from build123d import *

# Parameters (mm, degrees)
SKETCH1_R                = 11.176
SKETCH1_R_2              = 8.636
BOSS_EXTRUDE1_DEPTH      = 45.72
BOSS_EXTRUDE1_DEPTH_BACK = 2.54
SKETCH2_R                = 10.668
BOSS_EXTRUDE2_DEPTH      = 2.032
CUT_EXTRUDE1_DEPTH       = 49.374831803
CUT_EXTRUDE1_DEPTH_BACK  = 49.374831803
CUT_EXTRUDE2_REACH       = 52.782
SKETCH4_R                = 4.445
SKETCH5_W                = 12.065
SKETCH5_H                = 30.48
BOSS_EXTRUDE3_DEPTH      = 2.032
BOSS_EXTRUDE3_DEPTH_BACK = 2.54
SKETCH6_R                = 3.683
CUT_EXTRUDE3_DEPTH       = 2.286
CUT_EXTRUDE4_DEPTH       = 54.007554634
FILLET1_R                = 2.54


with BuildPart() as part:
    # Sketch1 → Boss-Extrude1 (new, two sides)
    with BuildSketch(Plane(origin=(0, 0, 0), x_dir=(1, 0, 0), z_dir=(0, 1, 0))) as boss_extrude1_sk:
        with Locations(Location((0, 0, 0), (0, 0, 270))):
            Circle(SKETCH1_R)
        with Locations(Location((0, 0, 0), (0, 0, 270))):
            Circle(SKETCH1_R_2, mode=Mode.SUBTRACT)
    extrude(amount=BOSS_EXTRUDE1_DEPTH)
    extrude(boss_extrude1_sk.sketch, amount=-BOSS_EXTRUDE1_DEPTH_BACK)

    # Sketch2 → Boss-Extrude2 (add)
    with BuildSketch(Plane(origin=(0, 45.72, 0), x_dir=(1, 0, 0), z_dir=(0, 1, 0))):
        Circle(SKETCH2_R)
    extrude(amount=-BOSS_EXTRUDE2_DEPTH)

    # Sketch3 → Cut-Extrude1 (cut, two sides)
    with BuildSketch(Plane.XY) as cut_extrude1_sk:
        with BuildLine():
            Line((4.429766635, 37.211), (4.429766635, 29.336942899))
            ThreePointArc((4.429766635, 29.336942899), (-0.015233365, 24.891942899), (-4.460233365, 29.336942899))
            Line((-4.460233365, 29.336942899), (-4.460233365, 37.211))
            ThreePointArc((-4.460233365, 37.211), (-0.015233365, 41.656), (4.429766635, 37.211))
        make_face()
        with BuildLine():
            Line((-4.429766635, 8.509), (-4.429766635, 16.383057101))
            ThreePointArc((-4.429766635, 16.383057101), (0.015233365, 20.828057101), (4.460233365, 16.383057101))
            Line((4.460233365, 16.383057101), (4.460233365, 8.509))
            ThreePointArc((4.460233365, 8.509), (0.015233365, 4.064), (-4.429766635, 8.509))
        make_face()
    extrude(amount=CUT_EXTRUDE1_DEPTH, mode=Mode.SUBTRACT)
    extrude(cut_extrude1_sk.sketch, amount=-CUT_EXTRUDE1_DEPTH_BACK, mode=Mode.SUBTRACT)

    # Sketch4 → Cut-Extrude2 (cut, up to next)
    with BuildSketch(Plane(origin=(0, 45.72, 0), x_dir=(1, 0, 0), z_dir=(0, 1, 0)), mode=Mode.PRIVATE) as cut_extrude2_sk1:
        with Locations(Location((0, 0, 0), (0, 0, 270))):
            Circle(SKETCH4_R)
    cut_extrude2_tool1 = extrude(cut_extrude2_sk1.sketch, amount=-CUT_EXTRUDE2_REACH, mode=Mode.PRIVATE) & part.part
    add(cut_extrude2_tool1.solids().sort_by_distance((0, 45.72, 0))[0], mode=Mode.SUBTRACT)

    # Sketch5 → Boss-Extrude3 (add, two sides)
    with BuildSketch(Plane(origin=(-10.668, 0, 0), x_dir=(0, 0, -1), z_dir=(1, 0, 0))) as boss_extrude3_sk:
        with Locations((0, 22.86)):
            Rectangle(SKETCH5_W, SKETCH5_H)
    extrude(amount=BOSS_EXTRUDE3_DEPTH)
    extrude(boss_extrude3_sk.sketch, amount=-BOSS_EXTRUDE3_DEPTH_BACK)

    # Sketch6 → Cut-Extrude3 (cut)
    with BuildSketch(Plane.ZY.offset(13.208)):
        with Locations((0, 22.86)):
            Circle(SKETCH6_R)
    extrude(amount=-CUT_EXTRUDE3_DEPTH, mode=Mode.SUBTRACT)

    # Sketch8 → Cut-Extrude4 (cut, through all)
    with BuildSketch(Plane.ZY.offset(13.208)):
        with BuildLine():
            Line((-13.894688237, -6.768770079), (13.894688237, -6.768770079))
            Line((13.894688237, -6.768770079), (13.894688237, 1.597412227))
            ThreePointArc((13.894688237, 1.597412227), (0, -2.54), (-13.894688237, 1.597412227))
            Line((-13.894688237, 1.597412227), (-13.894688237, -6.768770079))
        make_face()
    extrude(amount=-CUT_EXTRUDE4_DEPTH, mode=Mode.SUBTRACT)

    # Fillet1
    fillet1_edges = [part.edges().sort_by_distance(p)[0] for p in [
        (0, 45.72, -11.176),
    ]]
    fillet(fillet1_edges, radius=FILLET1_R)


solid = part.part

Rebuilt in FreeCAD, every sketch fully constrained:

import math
import FreeCAD as App
import Part
import Sketcher
Q = App.Units.Quantity


def edges_at(feature, points):
    """Names of the edges that pass closest to the given points."""
    edges = feature.Shape.Edges
    near = lambda p: min(range(len(edges)), key=lambda i: edges[i].distToShape(Part.Vertex(*p))[0])
    return sorted({f"Edge{near(p) + 1}" for p in points})


def add_polygon(sketch, points):
    """Adds a closed chain of lines whose ends are joined by coincident constraints."""
    first, n = sketch.GeometryCount, len(points)
    for a, b in zip(points, points[1:] + points[:1]):
        sketch.addGeometry(Part.LineSegment(App.Vector(*a, 0), App.Vector(*b, 0)), False)
    for i in range(n):
        sketch.addConstraint(Sketcher.Constraint("Coincident", first + i, 2, first + (i + 1) % n, 1))

doc = App.newDocument("Part")
body = doc.addObject("PartDesign::Body", "Body")

sketch1 = body.newObject("Sketcher::SketchObject", "Sketch")
sketch1.AttachmentSupport = (doc.getObject("XZ_Plane"), [""])
sketch1.MapMode = "FlatFace"
sketch1.addGeometry([
    Part.Circle(App.Vector(0, 0, 0), App.Vector(0, 0, 1), 11),
    Part.Circle(App.Vector(0, 0, 0), App.Vector(0, 0, 1), 9),
], False)
sketch1.addConstraint([
    Sketcher.Constraint("Coincident", 0, 3, -1, 1),
    Sketcher.Constraint("Coincident", 1, 3, -1, 1),
    Sketcher.Constraint("Diameter", 0, Q("0.88 in")),
    Sketcher.Constraint("Diameter", 1, Q("0.68 in")),
])
pad1 = body.newObject("PartDesign::Pad", "Pad")
pad1.Profile = sketch1
pad1.Type = "TwoLengths"
pad1.Length = Q("1.8 in")
pad1.Length2 = Q("0.1 in")
pad1.Reversed = True

sketch2 = body.newObject("Sketcher::SketchObject", "Sketch001")
sketch2.AttachmentSupport = (doc.getObject("XZ_Plane"), [""])
sketch2.MapMode = "FlatFace"
sketch2.AttachmentOffset = App.Placement(App.Vector(0, 0, -1.8 * 25.4), App.Rotation())
sketch2.addGeometry(Part.Circle(App.Vector(0, 0, 0), App.Vector(0, 0, 1), 11), False)
sketch2.addConstraint([
    Sketcher.Constraint("Coincident", 0, 3, -1, 1),
    Sketcher.Constraint("Diameter", 0, Q("0.84 in")),
])
pad2 = body.newObject("PartDesign::Pad", "Pad001")
pad2.Profile = sketch2
pad2.Length = Q("0.08 in")

sketch3 = body.newObject("Sketcher::SketchObject", "Sketch002")
sketch3.AttachmentSupport = (doc.getObject("XY_Plane"), [""])
sketch3.MapMode = "FlatFace"
sketch3.addGeometry([
    Part.LineSegment(App.Vector(4.4, 29.3, 0), App.Vector(4.4, 37.2, 0)),
    Part.ArcOfCircle(Part.Circle(App.Vector(0, 37.2, 0), App.Vector(0, 0, 1), 4.4), math.radians(0), math.radians(180)),
    Part.LineSegment(App.Vector(-4.5, 37.2, 0), App.Vector(-4.5, 29.3, 0)),
    Part.ArcOfCircle(Part.Circle(App.Vector(0, 29.3, 0), App.Vector(0, 0, 1), 4.4), math.radians(180), math.radians(360)),
    Part.LineSegment(App.Vector(-4.4, 16.4, 0), App.Vector(-4.4, 8.5, 0)),
    Part.ArcOfCircle(Part.Circle(App.Vector(0, 8.5, 0), App.Vector(0, 0, 1), 4.4), math.radians(180), math.radians(360)),
    Part.LineSegment(App.Vector(4.5, 8.5, 0), App.Vector(4.5, 16.4, 0)),
    Part.ArcOfCircle(Part.Circle(App.Vector(0, 16.4, 0), App.Vector(0, 0, 1), 4.4), math.radians(0), math.radians(180)),
], False)
sketch3.addConstraint([
    Sketcher.Constraint("Tangent", 0, 2, 1, 1),
    Sketcher.Constraint("Tangent", 1, 2, 2, 1),
    Sketcher.Constraint("Tangent", 2, 2, 3, 1),
    Sketcher.Constraint("Tangent", 3, 2, 0, 1),
    Sketcher.Constraint("Tangent", 4, 2, 5, 1),
    Sketcher.Constraint("Tangent", 5, 2, 6, 1),
    Sketcher.Constraint("Tangent", 6, 2, 7, 1),
    Sketcher.Constraint("Tangent", 7, 2, 4, 1),
    Sketcher.Constraint("Vertical", 0),
    Sketcher.Constraint("Vertical", 2),
    Sketcher.Constraint("Vertical", 4),
    Sketcher.Constraint("Vertical", 6),
    Sketcher.Constraint("Equal", 3, 5),
    Sketcher.Constraint("Equal", 2, 4),
    Sketcher.Constraint("Radius", 1, Q("0.175 in")),
    Sketcher.Constraint("DistanceY", 5, 3, 1, 3, Q("1.13 in")),
    Sketcher.Constraint("DistanceY", -1, 1, 1, 3, Q("1.465 in")),
    Sketcher.Constraint("DistanceY", 0, 1, 0, 2, Q("7.874057 mm")),
    Sketcher.Constraint("DistanceX", 1, 3, -1, 1, Q("0.015233 mm")),
    Sketcher.Constraint("DistanceX", -1, 1, 5, 3, Q("0.015233 mm")),
])
pocket1 = body.newObject("PartDesign::Pocket", "Pocket")
pocket1.Profile = sketch3
pocket1.Type = "ThroughAll"
pocket1.Midplane = True

sketch4 = body.newObject("Sketcher::SketchObject", "Sketch003")
sketch4.AttachmentSupport = (doc.getObject("XZ_Plane"), [""])
sketch4.MapMode = "FlatFace"
sketch4.AttachmentOffset = App.Placement(App.Vector(0, 0, -1.8 * 25.4), App.Rotation())
sketch4.addGeometry(Part.Circle(App.Vector(0, 0, 0), App.Vector(0, 0, 1), 4.4), False)
sketch4.addConstraint([
    Sketcher.Constraint("Coincident", 0, 3, -1, 1),
    Sketcher.Constraint("Diameter", 0, Q("0.35 in")),
])
pocket2 = body.newObject("PartDesign::Pocket", "Pocket001")
pocket2.Profile = sketch4
pocket2.Type = "UpToFirst"
pocket2.Reversed = True

sketch5 = body.newObject("Sketcher::SketchObject", "Sketch004")
sketch5.AttachmentSupport = (doc.getObject("YZ_Plane"), [""])
sketch5.MapMode = "FlatFace"
sketch5.AttachmentOffset = App.Placement(App.Vector(0, 0, -0.42 * 25.4), App.Rotation())
add_polygon(sketch5, [(38, 6), (8, 6), (8, -6), (38, -6)])
sketch5.addConstraint([
    Sketcher.Constraint("Horizontal", 0),
    Sketcher.Constraint("Vertical", 1),
    Sketcher.Constraint("Horizontal", 2),
    Sketcher.Constraint("Vertical", 3),
    Sketcher.Constraint("DistanceX", 0, 2, 0, 1, Q("1.2 in")),
    Sketcher.Constraint("DistanceX", -1, 1, 0, 2, Q("0.3 in")),
    Sketcher.Constraint("DistanceY", 1, 2, 1, 1, Q("0.475 in")),
    Sketcher.Constraint("DistanceY", -1, 1, 0, 2, Q("0.2375 in")),
])
pad3 = body.newObject("PartDesign::Pad", "Pad002")
pad3.Profile = sketch5
pad3.Type = "TwoLengths"
pad3.Length = Q("0.08 in")
pad3.Length2 = Q("0.1 in")

sketch6 = body.newObject("Sketcher::SketchObject", "Sketch005")
sketch6.AttachmentSupport = (doc.getObject("YZ_Plane"), [""])
sketch6.MapMode = "FlatFace"
sketch6.AttachmentOffset = App.Placement(App.Vector(0, 0, -0.52 * 25.4), App.Rotation())
sketch6.addGeometry(Part.Circle(App.Vector(22.9, 0, 0), App.Vector(0, 0, 1), 3.7), False)
sketch6.addConstraint([
    Sketcher.Constraint("PointOnObject", 0, 3, -1),
    Sketcher.Constraint("Diameter", 0, Q("0.29 in")),
    Sketcher.Constraint("DistanceX", -1, 1, 0, 3, Q("0.9 in")),
])
pocket3 = body.newObject("PartDesign::Pocket", "Pocket002")
pocket3.Profile = sketch6
pocket3.Length = Q("0.09 in")
pocket3.Reversed = True

sketch7 = body.newObject("Sketcher::SketchObject", "Sketch006")
sketch7.AttachmentSupport = (doc.getObject("YZ_Plane"), [""])
sketch7.MapMode = "FlatFace"
sketch7.AttachmentOffset = App.Placement(App.Vector(0, 0, -0.52 * 25.4), App.Rotation())
sketch7.addGeometry([
    Part.LineSegment(App.Vector(-7, -14, 0), App.Vector(-7, 14, 0)),
    Part.LineSegment(App.Vector(-7, 14, 0), App.Vector(2, 14, 0)),
    Part.ArcOfCircle(Part.Circle(App.Vector(23, 0, 0), App.Vector(0, 0, 1), 25), math.radians(147), math.radians(213)),
    Part.LineSegment(App.Vector(2, -14, 0), App.Vector(-7, -14, 0)),
], False)
sketch7.addConstraint([
    Sketcher.Constraint("Coincident", 0, 2, 1, 1),
    Sketcher.Constraint("Coincident", 1, 2, 2, 1),
    Sketcher.Constraint("Coincident", 2, 2, 3, 1),
    Sketcher.Constraint("Coincident", 3, 2, 0, 1),
    Sketcher.Constraint("Vertical", 0),
    Sketcher.Constraint("Horizontal", 1),
    Sketcher.Constraint("Horizontal", 3),
    Sketcher.Constraint("Symmetric", 1, 2, 2, 2, -1),
    Sketcher.Constraint("Radius", 2, Q("1 in")),
    Sketcher.Constraint("DistanceX", -1, 1, 2, 3, Q("0.9 in")),
    Sketcher.Constraint("DistanceX", 1, 1, 1, 2, Q("8.366182 mm")),
    Sketcher.Constraint("DistanceY", 0, 1, 0, 2, Q("27.789376 mm")),
])
pocket4 = body.newObject("PartDesign::Pocket", "Pocket003")
pocket4.Profile = sketch7
pocket4.Type = "ThroughAll"
pocket4.Reversed = True
doc.recompute()

fillet = body.newObject("PartDesign::Fillet", "Fillet")
fillet.Base = (pocket4, edges_at(pocket4, [(0, 45.72, -11.176)]))
fillet.Radius = Q("0.1 in")

doc.recompute()
